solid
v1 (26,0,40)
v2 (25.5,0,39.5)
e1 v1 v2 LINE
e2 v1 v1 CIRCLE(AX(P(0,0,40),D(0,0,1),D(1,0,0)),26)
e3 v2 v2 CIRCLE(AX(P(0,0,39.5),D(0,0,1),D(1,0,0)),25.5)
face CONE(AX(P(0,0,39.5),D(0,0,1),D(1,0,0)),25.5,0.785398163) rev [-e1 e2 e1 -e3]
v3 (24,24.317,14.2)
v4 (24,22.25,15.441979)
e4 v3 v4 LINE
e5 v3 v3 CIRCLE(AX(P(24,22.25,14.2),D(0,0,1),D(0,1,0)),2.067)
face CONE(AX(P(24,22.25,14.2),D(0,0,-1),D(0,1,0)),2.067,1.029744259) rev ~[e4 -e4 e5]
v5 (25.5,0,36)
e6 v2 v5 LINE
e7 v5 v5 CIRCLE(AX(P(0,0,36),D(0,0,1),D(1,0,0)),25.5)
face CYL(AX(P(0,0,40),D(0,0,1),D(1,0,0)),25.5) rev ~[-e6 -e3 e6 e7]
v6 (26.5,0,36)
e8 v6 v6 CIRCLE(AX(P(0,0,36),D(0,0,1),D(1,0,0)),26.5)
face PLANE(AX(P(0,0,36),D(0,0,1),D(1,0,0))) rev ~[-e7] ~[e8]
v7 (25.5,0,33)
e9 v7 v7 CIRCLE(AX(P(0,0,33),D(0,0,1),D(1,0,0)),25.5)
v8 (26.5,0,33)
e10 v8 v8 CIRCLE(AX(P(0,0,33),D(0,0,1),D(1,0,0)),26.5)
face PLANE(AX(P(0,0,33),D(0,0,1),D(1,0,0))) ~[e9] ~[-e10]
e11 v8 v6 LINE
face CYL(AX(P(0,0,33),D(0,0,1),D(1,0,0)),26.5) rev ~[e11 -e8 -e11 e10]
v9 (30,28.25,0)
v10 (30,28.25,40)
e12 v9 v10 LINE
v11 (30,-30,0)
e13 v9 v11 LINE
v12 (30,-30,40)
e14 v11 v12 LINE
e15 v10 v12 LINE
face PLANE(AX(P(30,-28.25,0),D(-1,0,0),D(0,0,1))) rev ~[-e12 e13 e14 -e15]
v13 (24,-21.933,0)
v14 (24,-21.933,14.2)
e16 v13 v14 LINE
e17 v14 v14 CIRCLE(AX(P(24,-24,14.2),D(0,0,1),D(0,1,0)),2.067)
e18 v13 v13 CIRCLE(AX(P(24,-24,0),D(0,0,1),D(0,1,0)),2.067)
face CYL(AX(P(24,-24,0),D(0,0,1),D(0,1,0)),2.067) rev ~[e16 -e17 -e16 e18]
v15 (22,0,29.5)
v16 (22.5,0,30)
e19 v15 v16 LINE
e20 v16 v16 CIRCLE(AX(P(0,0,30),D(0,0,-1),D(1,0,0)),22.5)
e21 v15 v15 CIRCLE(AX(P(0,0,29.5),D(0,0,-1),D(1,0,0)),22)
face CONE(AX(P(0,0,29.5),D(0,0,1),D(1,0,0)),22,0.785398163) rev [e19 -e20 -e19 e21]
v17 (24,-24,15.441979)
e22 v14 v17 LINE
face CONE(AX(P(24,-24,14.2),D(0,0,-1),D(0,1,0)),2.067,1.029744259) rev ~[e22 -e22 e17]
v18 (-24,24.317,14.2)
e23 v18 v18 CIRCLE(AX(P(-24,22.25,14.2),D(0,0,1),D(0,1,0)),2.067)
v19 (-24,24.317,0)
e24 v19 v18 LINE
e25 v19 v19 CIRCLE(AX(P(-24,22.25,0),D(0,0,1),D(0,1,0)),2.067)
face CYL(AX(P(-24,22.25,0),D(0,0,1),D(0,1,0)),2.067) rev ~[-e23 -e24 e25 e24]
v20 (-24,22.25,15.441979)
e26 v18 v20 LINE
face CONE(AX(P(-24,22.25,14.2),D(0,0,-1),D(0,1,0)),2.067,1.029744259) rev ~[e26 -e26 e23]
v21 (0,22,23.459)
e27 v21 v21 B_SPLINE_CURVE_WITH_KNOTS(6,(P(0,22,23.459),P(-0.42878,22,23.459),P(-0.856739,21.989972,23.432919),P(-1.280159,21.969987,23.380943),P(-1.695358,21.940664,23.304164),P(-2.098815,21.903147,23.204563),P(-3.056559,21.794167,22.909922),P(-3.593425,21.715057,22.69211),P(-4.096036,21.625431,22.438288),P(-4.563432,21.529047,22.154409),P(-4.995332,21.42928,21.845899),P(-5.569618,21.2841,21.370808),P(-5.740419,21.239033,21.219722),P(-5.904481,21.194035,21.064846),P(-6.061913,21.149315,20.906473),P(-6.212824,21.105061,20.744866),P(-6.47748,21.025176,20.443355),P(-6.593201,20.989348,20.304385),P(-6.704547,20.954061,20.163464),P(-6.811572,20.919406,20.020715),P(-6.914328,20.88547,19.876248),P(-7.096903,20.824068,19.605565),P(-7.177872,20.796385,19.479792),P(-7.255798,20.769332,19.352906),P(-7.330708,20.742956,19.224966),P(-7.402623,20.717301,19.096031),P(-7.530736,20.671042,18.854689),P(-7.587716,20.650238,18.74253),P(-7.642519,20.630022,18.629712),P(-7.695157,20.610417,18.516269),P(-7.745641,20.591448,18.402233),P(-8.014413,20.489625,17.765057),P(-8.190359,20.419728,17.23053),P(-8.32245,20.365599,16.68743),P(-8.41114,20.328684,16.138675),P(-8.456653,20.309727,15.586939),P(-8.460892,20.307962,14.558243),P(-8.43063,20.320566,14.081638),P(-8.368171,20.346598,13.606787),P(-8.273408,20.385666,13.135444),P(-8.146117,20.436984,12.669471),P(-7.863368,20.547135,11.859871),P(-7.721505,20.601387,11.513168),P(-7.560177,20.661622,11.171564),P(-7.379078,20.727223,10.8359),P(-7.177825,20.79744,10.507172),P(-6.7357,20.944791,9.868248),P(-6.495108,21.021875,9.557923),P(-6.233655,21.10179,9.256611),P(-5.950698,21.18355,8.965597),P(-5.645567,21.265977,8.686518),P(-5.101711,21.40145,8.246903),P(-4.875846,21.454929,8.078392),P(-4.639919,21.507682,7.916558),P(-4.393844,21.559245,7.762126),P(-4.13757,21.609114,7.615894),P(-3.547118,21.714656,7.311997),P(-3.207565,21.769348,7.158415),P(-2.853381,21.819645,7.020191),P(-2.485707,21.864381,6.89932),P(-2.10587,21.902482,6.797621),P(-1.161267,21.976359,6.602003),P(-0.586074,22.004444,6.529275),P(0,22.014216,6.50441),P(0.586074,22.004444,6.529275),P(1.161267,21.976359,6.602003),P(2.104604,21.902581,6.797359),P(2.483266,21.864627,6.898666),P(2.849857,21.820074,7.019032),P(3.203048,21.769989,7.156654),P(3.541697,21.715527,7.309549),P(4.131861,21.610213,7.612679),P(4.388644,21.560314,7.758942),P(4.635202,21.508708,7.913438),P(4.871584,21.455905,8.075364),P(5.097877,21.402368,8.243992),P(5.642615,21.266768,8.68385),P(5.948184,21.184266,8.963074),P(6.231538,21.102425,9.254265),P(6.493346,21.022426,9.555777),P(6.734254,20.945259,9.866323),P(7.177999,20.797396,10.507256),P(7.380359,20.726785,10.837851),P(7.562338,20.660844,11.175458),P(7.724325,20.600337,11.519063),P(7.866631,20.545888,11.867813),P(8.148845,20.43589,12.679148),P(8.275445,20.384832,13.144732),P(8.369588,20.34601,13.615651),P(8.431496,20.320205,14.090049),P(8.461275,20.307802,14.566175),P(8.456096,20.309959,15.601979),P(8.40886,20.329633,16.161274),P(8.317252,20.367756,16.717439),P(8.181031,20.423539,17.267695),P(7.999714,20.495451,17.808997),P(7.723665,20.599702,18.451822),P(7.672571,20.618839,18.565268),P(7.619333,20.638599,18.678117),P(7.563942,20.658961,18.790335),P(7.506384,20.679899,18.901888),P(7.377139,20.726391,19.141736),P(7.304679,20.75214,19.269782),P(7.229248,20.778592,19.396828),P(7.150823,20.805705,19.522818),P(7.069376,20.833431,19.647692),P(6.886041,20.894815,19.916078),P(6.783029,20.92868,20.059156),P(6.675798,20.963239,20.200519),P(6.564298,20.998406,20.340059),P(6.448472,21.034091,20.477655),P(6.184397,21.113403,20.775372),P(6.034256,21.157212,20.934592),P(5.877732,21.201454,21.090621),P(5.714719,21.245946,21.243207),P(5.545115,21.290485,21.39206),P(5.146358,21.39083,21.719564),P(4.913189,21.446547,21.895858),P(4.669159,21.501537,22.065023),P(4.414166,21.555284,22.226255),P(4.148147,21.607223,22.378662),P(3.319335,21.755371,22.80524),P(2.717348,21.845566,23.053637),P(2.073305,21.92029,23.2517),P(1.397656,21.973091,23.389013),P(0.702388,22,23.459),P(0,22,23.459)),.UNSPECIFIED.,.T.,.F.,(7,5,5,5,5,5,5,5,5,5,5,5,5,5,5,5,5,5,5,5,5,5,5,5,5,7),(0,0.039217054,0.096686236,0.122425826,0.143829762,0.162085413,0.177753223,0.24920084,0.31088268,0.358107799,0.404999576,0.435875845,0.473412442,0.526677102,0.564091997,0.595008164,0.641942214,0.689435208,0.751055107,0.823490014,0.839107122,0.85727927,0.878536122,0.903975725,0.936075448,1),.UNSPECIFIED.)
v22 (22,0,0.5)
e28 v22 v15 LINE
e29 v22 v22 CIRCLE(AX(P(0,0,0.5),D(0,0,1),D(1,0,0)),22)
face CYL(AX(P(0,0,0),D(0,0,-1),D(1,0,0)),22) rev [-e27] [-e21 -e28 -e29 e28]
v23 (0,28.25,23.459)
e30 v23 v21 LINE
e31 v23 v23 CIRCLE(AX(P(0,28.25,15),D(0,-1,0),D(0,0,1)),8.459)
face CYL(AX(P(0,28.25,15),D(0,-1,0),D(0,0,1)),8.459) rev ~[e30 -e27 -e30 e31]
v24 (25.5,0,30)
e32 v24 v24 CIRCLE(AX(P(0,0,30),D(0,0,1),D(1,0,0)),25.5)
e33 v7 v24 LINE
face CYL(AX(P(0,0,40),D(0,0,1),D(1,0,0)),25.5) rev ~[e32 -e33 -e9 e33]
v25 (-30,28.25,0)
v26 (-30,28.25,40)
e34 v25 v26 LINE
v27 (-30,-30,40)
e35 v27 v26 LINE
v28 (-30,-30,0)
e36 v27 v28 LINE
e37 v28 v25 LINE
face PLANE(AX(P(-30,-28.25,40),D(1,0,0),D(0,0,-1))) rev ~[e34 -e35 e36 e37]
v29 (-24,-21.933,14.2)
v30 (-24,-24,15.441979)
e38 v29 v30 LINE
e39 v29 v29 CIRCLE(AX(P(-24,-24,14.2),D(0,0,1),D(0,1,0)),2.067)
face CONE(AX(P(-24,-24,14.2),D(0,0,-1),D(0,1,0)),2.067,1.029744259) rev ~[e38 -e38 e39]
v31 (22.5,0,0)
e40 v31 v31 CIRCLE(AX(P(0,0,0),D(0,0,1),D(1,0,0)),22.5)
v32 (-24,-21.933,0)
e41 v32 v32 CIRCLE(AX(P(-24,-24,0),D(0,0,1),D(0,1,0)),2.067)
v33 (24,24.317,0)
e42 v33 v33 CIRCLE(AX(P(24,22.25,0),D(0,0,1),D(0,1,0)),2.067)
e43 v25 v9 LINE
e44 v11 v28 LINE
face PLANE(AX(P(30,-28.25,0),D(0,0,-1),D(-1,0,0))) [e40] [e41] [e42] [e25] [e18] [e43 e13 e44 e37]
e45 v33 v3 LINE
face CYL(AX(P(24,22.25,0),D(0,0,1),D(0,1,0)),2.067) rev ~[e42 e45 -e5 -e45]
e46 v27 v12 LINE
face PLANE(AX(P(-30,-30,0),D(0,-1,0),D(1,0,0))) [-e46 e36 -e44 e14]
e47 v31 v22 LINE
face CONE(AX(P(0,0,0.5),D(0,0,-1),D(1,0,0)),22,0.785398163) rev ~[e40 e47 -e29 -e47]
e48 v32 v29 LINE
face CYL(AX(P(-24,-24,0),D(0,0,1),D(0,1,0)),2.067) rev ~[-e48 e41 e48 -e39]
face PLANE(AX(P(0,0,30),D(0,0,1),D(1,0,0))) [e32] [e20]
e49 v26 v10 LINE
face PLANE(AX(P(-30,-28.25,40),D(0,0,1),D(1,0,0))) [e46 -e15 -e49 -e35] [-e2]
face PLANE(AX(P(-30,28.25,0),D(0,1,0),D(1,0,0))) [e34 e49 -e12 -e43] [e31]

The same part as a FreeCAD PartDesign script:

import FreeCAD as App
import Part
import Sketcher


def edges_at(feature, points):
    """Names of the edges that pass closest to the given points."""
    edges = feature.Shape.Edges
    near = lambda p: min(range(len(edges)), key=lambda i: edges[i].distToShape(Part.Vertex(*p))[0])
    return sorted({f"Edge{near(p) + 1}" for p in points})

doc = App.newDocument("Part")
body = doc.addObject("PartDesign::Body", "Body")

# Sketch on XY plane
sketch1 = doc.addObject("Sketcher::SketchObject", "Sketch")
body.addObject(sketch1)
sketch1.AttachmentSupport = (doc.XY_Plane, [""])
sketch1.MapMode = "FlatFace"
sketch1.addGeometry(Part.LineSegment(App.Vector(30, 28, 0), App.Vector(-30, 28, 0)), False)
sketch1.addGeometry(Part.LineSegment(App.Vector(-30, 28, 0), App.Vector(-30, -28, 0)), False)
sketch1.addGeometry(Part.LineSegment(App.Vector(-30, -28, 0), App.Vector(30, -28, 0)), False)
sketch1.addGeometry(Part.LineSegment(App.Vector(30, -28, 0), App.Vector(30, 28, 0)), False)
sketch1.addGeometry(Part.Circle(App.Vector(0, 0, 0), App.Vector(0, 0, 1), 22), False)
sketch1.addConstraint(Sketcher.Constraint("Coincident", 0, 2, 1, 1))
sketch1.addConstraint(Sketcher.Constraint("Coincident", 1, 2, 2, 1))
sketch1.addConstraint(Sketcher.Constraint("Coincident", 2, 2, 3, 1))
sketch1.addConstraint(Sketcher.Constraint("Coincident", 3, 2, 0, 1))
sketch1.addConstraint(Sketcher.Constraint("Horizontal", 0))
sketch1.addConstraint(Sketcher.Constraint("Vertical", 1))
sketch1.addConstraint(Sketcher.Constraint("Horizontal", 2))
sketch1.addConstraint(Sketcher.Constraint("Vertical", 3))
sketch1.addConstraint(Sketcher.Constraint("Coincident", 4, 3, -1, 1))
sketch1.addConstraint(Sketcher.Constraint("Symmetric", 0, 2, 2, 2, -1, 1))
sketch1.addConstraint(Sketcher.Constraint("Diameter", 4, 44.0))
sketch1.addConstraint(Sketcher.Constraint("DistanceX", 0, 2, 0, 1, 60.0))
sketch1.addConstraint(Sketcher.Constraint("DistanceY", 1, 2, 1, 1, 56.5))
pad1 = doc.addObject("PartDesign::Pad", "Pad")
body.addObject(pad1)
pad1.Profile = sketch1
pad1.Length = 40

# Sketch on XZ plane
sketch2 = doc.addObject("Sketcher::SketchObject", "Sketch001")
body.addObject(sketch2)
sketch2.AttachmentSupport = (doc.XZ_Plane, [""])
sketch2.MapMode = "FlatFace"
sketch2.AttachmentOffset = App.Placement(App.Vector(0, 0, -28.25), App.Rotation())
sketch2.addGeometry(Part.Circle(App.Vector(0, 15, 0), App.Vector(0, 0, 1), 8), False)
sketch2.addConstraint(Sketcher.Constraint("PointOnObject", 0, 3, -2))
sketch2.addConstraint(Sketcher.Constraint("Diameter", 0, 16.918))
sketch2.addConstraint(Sketcher.Constraint("DistanceY", -1, 1, 0, 3, 15.0))
doc.recompute()
hole = doc.addObject("PartDesign::Hole", "Hole")
body.addObject(hole)
hole.Profile = sketch2
hole.ThreadType = "None"
hole.Diameter = 16.918
hole.DepthType = "Dimension"
hole.Depth = 41.1
hole.DrillPoint = "Angled"
hole.DrillPointAngle = 118
hole.Reversed = True

# Sketch on XY plane
sketch3 = doc.addObject("Sketcher::SketchObject", "Sketch002")
body.addObject(sketch3)
sketch3.AttachmentSupport = (doc.XY_Plane, [""])
sketch3.MapMode = "FlatFace"
sketch3.AttachmentOffset = App.Placement(App.Vector(0, 0, 40), App.Rotation())
sketch3.addGeometry(Part.Circle(App.Vector(0, 0, 0), App.Vector(0, 0, 1), 26), False)
sketch3.addConstraint(Sketcher.Constraint("Coincident", 0, 3, -1, 1))
sketch3.addConstraint(Sketcher.Constraint("Diameter", 0, 51.0))
pocket1 = doc.addObject("PartDesign::Pocket", "Pocket")
body.addObject(pocket1)
pocket1.Profile = sketch3
pocket1.Length = 10
doc.recompute()

chamfer = doc.addObject("PartDesign::Chamfer", "Chamfer")
body.addObject(chamfer)
chamfer.Base = (pocket1, edges_at(pocket1, [(-25.5, 0, 40), (-22, 0, 30), (-22, 0, 0)]))
chamfer.Size = 0.5

# Sketch on XY plane
sketch4 = doc.addObject("Sketcher::SketchObject", "Sketch003")
body.addObject(sketch4)
sketch4.AttachmentSupport = (doc.XY_Plane, [""])
sketch4.MapMode = "FlatFace"
sketch4.addGeometry(Part.Circle(App.Vector(24, -24, 0), App.Vector(0, 0, 1), 2.1), False)
sketch4.addGeometry(Part.Circle(App.Vector(24, 22.2, 0), App.Vector(0, 0, 1), 2.1), False)
sketch4.addGeometry(Part.Circle(App.Vector(-24, 22.2, 0), App.Vector(0, 0, 1), 2.1), False)
sketch4.addGeometry(Part.Circle(App.Vector(-24, -24, 0), App.Vector(0, 0, 1), 2.1), False)
sketch4.addConstraint(Sketcher.Constraint("Equal", 0, 1))
sketch4.addConstraint(Sketcher.Constraint("Equal", 1, 2))
sketch4.addConstraint(Sketcher.Constraint("Equal", 2, 3))
sketch4.addConstraint(Sketcher.Constraint("Symmetric", 1, 3, 2, 3, -2))
sketch4.addConstraint(Sketcher.Constraint("Symmetric", 0, 3, 3, 3, -2))
sketch4.addConstraint(Sketcher.Constraint("Vertical", 0, 3, 1, 3))
sketch4.addConstraint(Sketcher.Constraint("Diameter", 0, 4.134))
sketch4.addConstraint(Sketcher.Constraint("DistanceX", -1, 1, 0, 3, 24.0))
sketch4.addConstraint(Sketcher.Constraint("DistanceY", 0, 3, -1, 1, 24.0))
sketch4.addConstraint(Sketcher.Constraint("DistanceY", -1, 1, 1, 3, 22.25))
doc.recompute()
hole2 = doc.addObject("PartDesign::Hole", "Hole001")
body.addObject(hole2)
hole2.Profile = sketch4
hole2.ThreadType = "None"
hole2.Diameter = 4.134
hole2.DepthType = "Dimension"
hole2.Depth = 14.2
hole2.DrillPoint = "Angled"
hole2.DrillPointAngle = 118
hole2.Reversed = True

# Sketch on XZ plane
sketch5 = doc.addObject("Sketcher::SketchObject", "Sketch004")
body.addObject(sketch5)
sketch5.AttachmentSupport = (doc.XZ_Plane, [""])
sketch5.MapMode = "FlatFace"
sketch5.AttachmentOffset = App.Placement(App.Vector(0, 0, 28.25), App.Rotation())
sketch5.addGeometry(Part.LineSegment(App.Vector(-30, 0, 0), App.Vector(30, 0, 0)), False)
sketch5.addGeometry(Part.LineSegment(App.Vector(30, 0, 0), App.Vector(30, 40, 0)), False)
sketch5.addGeometry(Part.LineSegment(App.Vector(30, 40, 0), App.Vector(-30, 40, 0)), False)
sketch5.addGeometry(Part.LineSegment(App.Vector(-30, 40, 0), App.Vector(-30, 0, 0)), False)
sketch5.addConstraint(Sketcher.Constraint("Coincident", 0, 2, 1, 1))
sketch5.addConstraint(Sketcher.Constraint("Coincident", 1, 2, 2, 1))
sketch5.addConstraint(Sketcher.Constraint("Coincident", 2, 2, 3, 1))
sketch5.addConstraint(Sketcher.Constraint("Coincident", 3, 2, 0, 1))
sketch5.addConstraint(Sketcher.Constraint("Horizontal", 0))
sketch5.addConstraint(Sketcher.Constraint("Vertical", 1))
sketch5.addConstraint(Sketcher.Constraint("Horizontal", 2))
sketch5.addConstraint(Sketcher.Constraint("Vertical", 3))
sketch5.addConstraint(Sketcher.Constraint("Symmetric", 0, 2, 3, 2, -1, 1))
sketch5.addConstraint(Sketcher.Constraint("DistanceX", 0, 1, 0, 2, 60.0))
sketch5.addConstraint(Sketcher.Constraint("DistanceY", 1, 1, 1, 2, 40.0))
pad2 = doc.addObject("PartDesign::Pad", "Pad001")
body.addObject(pad2)
pad2.Profile = sketch5
pad2.Length = 1.75

# Sketch on XZ plane
sketch6 = doc.addObject("Sketcher::SketchObject", "Sketch005")
body.addObject(sketch6)
sketch6.AttachmentSupport = (doc.XZ_Plane, [""])
sketch6.MapMode = "FlatFace"
sketch6.addGeometry(Part.LineSegment(App.Vector(25, 36, 0), App.Vector(26.5, 36, 0)), False)
sketch6.addGeometry(Part.LineSegment(App.Vector(26.5, 36, 0), App.Vector(26.5, 33, 0)), False)
sketch6.addGeometry(Part.LineSegment(App.Vector(26.5, 33, 0), App.Vector(25, 33, 0)), False)
sketch6.addGeometry(Part.LineSegment(App.Vector(25, 33, 0), App.Vector(25, 36, 0)), False)
sketch6.addConstraint(Sketcher.Constraint("Coincident", 0, 2, 1, 1))
sketch6.addConstraint(Sketcher.Constraint("Coincident", 1, 2, 2, 1))
sketch6.addConstraint(Sketcher.Constraint("Coincident", 2, 2, 3, 1))
sketch6.addConstraint(Sketcher.Constraint("Coincident", 3, 2, 0, 1))
sketch6.addConstraint(Sketcher.Constraint("Horizontal", 0))
sketch6.addConstraint(Sketcher.Constraint("Vertical", 1))
sketch6.addConstraint(Sketcher.Constraint("Horizontal", 2))
sketch6.addConstraint(Sketcher.Constraint("Vertical", 3))
sketch6.addConstraint(Sketcher.Constraint("DistanceY", 1, 2, 1, 1, 3.0))
sketch6.addConstraint(Sketcher.Constraint("DistanceX", 0, 1, 0, 2, 1.5))
sketch6.addConstraint(Sketcher.Constraint("DistanceY", -1, 1, 1, 2, 33.0))
sketch6.addConstraint(Sketcher.Constraint("DistanceX", -1, 1, 2, 2, 25.0))
groove = doc.addObject("PartDesign::Groove", "Groove")
body.addObject(groove)
groove.Profile = sketch6
groove.ReferenceAxis = (sketch6, ["V_Axis"])
groove.Angle = 360

doc.recompute()
